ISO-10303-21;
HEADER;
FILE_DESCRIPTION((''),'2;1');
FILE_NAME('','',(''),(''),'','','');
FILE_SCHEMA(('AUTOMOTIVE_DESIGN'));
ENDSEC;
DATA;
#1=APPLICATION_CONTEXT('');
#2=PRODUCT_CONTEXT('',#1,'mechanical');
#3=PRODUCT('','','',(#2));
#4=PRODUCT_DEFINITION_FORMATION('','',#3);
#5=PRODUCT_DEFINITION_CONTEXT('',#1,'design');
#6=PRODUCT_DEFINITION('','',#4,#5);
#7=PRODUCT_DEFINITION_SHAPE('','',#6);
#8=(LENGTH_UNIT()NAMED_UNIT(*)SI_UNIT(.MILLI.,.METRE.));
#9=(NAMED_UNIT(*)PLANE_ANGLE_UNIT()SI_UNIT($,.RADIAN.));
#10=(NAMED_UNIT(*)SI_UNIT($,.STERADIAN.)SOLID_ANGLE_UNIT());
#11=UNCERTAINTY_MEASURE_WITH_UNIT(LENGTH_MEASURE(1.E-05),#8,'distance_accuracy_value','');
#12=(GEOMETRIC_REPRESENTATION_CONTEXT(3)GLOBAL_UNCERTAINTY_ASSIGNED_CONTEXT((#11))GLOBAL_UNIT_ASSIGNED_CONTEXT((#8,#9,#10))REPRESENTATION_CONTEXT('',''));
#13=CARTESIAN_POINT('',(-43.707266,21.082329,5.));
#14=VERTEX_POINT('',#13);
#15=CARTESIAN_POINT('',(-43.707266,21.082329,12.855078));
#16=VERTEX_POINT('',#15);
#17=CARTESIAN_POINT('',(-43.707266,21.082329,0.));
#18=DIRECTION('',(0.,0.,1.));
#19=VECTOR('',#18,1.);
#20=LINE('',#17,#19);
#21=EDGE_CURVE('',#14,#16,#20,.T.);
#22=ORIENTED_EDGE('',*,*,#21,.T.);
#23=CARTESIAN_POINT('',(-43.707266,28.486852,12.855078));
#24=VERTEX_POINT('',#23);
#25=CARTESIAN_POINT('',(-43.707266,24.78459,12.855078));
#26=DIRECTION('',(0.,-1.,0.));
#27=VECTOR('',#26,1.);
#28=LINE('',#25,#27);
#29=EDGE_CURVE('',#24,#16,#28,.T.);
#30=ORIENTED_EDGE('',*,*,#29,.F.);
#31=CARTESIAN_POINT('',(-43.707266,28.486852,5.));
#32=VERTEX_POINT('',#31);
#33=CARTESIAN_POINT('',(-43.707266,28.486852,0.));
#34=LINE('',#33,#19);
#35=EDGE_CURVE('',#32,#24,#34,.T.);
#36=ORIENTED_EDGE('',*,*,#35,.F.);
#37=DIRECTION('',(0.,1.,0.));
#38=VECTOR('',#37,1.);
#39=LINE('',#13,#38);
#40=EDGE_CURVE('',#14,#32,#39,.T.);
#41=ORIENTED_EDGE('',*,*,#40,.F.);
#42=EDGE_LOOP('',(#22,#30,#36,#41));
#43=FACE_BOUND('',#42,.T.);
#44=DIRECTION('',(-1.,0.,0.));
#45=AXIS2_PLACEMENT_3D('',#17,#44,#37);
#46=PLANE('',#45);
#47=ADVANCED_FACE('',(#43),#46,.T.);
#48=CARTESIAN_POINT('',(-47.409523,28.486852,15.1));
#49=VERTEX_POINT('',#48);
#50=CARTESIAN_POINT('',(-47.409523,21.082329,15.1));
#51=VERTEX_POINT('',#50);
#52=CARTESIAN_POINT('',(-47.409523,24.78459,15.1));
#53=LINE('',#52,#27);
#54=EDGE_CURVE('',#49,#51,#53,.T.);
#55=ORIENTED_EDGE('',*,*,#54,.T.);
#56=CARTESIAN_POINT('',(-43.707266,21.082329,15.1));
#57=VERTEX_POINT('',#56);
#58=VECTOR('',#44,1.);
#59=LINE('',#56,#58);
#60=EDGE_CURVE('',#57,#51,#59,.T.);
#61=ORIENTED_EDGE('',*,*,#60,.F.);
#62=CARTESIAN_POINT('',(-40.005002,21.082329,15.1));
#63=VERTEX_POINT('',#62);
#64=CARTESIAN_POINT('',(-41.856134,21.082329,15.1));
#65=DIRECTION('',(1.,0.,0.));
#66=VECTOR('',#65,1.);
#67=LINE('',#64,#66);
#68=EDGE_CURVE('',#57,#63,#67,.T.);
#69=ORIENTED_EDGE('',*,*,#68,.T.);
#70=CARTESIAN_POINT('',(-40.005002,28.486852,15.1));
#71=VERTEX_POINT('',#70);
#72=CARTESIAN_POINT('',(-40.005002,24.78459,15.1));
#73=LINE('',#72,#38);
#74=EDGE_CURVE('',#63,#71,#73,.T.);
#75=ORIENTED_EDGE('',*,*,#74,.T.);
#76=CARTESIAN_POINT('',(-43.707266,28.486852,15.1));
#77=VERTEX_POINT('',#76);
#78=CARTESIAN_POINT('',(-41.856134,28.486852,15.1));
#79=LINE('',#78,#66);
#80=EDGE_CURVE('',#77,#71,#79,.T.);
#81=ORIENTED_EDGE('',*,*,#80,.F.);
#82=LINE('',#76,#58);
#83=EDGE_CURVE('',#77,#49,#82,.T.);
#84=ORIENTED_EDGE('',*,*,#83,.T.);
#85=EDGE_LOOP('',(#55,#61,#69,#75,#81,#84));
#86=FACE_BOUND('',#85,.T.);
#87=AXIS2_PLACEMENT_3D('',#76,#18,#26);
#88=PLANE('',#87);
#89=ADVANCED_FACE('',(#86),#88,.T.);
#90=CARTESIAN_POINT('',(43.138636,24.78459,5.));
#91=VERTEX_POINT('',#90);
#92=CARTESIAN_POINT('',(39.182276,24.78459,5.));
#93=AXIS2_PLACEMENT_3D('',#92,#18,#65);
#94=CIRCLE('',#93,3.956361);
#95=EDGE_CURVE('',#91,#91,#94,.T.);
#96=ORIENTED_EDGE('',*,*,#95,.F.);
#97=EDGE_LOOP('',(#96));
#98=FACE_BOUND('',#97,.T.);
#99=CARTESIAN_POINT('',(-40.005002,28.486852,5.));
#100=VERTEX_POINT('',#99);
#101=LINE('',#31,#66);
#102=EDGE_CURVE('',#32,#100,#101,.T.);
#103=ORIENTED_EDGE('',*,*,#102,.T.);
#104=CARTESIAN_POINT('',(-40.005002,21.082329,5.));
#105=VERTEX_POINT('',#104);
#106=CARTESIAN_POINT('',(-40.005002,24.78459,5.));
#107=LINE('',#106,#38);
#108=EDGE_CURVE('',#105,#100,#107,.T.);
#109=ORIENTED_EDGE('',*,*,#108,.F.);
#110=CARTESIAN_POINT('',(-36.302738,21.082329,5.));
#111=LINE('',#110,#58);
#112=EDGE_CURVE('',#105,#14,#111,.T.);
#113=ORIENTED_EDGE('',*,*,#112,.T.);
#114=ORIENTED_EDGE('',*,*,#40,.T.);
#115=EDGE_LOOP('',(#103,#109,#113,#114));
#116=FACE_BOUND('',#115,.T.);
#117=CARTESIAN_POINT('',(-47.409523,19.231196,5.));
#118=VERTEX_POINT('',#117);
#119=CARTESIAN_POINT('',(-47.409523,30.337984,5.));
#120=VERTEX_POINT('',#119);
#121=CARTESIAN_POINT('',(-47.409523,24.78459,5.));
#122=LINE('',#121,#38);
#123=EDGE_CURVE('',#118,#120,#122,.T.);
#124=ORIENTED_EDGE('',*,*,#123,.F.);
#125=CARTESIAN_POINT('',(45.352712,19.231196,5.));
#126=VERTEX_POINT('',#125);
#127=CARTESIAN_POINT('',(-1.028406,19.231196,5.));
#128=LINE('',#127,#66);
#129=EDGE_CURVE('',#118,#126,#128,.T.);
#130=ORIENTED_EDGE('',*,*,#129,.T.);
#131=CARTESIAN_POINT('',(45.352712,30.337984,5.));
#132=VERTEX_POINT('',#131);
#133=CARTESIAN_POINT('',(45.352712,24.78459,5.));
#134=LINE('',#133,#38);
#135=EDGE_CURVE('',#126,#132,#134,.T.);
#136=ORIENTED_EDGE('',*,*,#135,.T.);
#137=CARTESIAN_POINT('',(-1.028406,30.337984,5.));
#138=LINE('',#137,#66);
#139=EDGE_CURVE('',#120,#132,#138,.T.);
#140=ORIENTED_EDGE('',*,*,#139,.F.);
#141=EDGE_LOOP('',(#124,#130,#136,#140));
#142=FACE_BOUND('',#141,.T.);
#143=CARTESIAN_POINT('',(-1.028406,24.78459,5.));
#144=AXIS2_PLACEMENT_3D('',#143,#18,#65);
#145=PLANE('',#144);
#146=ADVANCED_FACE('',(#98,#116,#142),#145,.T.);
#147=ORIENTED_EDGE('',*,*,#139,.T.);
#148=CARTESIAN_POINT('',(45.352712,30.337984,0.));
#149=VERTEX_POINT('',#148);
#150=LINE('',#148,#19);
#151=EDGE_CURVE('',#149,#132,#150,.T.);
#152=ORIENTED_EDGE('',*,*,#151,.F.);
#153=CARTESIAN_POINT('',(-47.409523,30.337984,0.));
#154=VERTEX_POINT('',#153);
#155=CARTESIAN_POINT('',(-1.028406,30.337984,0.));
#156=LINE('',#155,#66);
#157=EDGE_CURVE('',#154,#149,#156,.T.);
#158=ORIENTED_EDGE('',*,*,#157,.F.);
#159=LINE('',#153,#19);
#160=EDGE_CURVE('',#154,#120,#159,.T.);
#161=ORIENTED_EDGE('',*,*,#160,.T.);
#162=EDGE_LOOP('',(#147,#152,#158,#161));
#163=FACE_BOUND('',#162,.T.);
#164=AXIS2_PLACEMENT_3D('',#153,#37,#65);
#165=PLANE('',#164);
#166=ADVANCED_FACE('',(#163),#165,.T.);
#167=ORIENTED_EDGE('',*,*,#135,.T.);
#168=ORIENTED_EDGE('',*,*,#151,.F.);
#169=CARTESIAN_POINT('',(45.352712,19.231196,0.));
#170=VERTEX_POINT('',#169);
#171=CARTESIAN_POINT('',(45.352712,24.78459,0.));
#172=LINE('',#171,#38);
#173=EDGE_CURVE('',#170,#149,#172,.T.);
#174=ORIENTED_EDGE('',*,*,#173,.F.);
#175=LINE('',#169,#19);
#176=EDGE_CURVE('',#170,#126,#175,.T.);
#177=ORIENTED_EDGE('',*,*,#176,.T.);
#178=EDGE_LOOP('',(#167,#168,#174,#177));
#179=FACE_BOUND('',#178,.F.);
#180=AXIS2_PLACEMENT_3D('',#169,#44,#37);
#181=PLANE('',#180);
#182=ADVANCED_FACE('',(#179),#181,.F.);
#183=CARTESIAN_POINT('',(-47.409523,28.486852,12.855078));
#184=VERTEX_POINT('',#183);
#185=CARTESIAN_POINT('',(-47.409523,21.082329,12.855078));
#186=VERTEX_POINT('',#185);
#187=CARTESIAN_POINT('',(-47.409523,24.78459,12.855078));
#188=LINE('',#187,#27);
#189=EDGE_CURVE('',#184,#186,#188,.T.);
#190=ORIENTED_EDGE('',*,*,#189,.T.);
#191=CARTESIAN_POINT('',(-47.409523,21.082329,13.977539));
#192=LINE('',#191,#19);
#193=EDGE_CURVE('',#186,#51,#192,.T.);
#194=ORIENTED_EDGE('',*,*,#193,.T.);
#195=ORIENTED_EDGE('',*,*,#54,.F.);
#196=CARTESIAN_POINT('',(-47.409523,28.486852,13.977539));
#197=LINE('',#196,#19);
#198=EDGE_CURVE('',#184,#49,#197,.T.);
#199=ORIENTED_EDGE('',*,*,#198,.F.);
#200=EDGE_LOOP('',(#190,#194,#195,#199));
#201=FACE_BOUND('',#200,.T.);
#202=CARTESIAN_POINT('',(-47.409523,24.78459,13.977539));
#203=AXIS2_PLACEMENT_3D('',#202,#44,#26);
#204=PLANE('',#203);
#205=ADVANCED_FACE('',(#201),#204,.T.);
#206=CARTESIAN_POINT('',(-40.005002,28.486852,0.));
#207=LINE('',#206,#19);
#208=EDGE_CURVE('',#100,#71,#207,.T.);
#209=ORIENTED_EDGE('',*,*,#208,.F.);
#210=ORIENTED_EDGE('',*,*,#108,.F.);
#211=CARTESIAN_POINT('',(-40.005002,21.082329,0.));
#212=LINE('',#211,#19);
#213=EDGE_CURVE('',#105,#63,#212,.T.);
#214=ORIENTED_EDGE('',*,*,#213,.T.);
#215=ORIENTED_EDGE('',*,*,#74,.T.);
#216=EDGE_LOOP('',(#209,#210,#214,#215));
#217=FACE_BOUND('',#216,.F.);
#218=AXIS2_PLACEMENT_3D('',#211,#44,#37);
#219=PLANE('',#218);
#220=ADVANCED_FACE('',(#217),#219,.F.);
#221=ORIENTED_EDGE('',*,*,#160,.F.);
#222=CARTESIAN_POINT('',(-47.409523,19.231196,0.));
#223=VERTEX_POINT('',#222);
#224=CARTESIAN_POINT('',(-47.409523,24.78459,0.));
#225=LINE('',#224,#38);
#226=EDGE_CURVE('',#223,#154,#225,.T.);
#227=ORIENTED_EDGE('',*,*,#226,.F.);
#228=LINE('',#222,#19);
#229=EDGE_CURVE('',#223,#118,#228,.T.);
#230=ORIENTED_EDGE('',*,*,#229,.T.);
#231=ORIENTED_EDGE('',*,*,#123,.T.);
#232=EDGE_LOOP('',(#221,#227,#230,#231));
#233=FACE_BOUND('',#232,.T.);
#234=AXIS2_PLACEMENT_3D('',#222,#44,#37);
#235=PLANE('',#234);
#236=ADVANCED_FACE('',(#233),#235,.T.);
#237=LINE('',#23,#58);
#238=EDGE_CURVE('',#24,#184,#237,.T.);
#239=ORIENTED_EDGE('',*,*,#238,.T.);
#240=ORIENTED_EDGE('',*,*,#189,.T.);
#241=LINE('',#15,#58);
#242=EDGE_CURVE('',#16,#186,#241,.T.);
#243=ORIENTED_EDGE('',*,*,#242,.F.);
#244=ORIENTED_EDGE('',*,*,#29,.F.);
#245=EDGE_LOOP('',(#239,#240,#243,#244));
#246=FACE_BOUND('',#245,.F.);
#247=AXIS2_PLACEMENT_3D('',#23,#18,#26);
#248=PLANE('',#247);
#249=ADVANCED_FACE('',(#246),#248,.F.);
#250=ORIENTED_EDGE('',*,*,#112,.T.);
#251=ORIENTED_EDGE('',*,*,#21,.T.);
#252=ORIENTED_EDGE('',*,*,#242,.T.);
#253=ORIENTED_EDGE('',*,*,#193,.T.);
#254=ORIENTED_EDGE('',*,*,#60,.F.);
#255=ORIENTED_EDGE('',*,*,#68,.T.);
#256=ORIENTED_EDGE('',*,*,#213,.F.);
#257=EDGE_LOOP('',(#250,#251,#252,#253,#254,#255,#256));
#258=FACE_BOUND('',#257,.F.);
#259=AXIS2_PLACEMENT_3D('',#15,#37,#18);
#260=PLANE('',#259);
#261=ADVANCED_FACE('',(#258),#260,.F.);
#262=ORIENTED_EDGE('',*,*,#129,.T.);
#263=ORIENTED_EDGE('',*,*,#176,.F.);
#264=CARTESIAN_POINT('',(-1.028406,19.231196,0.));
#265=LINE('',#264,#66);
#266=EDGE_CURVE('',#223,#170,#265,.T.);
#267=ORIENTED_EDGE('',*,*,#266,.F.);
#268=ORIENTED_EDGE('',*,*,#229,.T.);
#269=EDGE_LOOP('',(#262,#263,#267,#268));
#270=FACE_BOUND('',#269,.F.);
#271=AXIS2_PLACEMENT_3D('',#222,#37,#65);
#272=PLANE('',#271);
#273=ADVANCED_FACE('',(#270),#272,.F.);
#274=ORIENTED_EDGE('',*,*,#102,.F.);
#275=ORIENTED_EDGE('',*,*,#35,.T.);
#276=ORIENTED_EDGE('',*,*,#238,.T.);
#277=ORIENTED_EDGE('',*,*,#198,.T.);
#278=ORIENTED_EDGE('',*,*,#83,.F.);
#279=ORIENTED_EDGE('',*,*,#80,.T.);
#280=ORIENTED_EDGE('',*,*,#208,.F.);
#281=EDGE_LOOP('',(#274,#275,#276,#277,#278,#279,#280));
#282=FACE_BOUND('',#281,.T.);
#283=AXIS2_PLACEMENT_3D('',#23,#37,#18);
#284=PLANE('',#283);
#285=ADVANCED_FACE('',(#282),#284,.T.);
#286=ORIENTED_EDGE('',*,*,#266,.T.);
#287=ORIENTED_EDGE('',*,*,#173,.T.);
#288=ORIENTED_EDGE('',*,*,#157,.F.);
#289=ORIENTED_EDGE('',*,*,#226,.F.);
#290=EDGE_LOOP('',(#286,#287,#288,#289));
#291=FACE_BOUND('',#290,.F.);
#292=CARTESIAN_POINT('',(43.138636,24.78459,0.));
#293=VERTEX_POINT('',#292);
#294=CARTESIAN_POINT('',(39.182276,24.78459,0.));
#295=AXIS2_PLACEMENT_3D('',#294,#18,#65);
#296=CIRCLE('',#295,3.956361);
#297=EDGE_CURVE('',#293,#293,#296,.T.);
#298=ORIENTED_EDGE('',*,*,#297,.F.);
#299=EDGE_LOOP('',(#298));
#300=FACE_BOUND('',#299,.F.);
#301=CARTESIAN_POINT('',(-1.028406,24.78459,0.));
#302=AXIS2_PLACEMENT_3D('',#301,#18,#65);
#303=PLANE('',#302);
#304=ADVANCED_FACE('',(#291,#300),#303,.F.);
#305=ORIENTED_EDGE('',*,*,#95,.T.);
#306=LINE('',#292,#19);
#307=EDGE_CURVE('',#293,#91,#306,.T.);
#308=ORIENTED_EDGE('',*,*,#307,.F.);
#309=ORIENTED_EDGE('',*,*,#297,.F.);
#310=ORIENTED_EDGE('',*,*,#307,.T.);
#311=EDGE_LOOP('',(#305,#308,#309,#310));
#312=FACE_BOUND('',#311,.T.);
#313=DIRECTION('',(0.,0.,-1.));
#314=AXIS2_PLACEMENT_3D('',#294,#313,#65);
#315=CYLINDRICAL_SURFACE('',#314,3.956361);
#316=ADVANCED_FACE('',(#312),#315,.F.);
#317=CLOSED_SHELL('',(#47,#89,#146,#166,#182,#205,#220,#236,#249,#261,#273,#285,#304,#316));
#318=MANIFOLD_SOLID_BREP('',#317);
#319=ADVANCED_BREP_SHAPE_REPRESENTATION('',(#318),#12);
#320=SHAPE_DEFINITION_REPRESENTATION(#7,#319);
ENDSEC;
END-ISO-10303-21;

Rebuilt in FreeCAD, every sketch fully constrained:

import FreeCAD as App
import Part
import Sketcher

doc = App.newDocument("Part")
body = doc.addObject("PartDesign::Body", "Body")

sketch1 = body.newObject("Sketcher::SketchObject", "Sketch")
sketch1.AttachmentSupport = (doc.getObject("XY_Plane"), [""])
sketch1.MapMode = "FlatFace"
sketch1.addGeometry([
    Part.LineSegment(App.Vector(-47.4, 30.3, 0), App.Vector(-47.4, 19.2, 0)),
    Part.LineSegment(App.Vector(-47.4, 19.2, 0), App.Vector(45.4, 19.2, 0)),
    Part.LineSegment(App.Vector(45.4, 19.2, 0), App.Vector(45.4, 30.3, 0)),
    Part.LineSegment(App.Vector(45.4, 30.3, 0), App.Vector(-47.4, 30.3, 0)),
    Part.Circle(App.Vector(39.2, 24.8, 0), App.Vector(0, 0, 1), 4),
    Part.LineSegment(App.Vector(-43.7, 28.5, 0), App.Vector(-40, 28.5, 0)),
    Part.LineSegment(App.Vector(-40, 28.5, 0), App.Vector(-40, 21.1, 0)),
    Part.LineSegment(App.Vector(-40, 21.1, 0), App.Vector(-43.7, 21.1, 0)),
    Part.LineSegment(App.Vector(-43.7, 21.1, 0), App.Vector(-43.7, 28.5, 0)),
], False)
sketch1.addConstraint([
    Sketcher.Constraint("Coincident", 0, 2, 1, 1),
    Sketcher.Constraint("Coincident", 1, 2, 2, 1),
    Sketcher.Constraint("Coincident", 2, 2, 3, 1),
    Sketcher.Constraint("Coincident", 3, 2, 0, 1),
    Sketcher.Constraint("Coincident", 5, 2, 6, 1),
    Sketcher.Constraint("Coincident", 6, 2, 7, 1),
    Sketcher.Constraint("Coincident", 7, 2, 8, 1),
    Sketcher.Constraint("Coincident", 8, 2, 5, 1),
    Sketcher.Constraint("Vertical", 0),
    Sketcher.Constraint("Horizontal", 1),
    Sketcher.Constraint("Vertical", 2),
    Sketcher.Constraint("Horizontal", 3),
    Sketcher.Constraint("Horizontal", 5),
    Sketcher.Constraint("Vertical", 6),
    Sketcher.Constraint("Horizontal", 7),
    Sketcher.Constraint("Vertical", 8),
    Sketcher.Constraint("Diameter", 4, 7.912721),
    Sketcher.Constraint("DistanceX", 0, 2, 4, 3, 86.591799),
    Sketcher.Constraint("DistanceX", 1, 1, 1, 2, 92.762236),
    Sketcher.Constraint("DistanceX", 5, 1, 5, 2, 3.702264),
    Sketcher.Constraint("DistanceY", 0, 2, 0, 1, 11.106787),
    Sketcher.Constraint("DistanceY", 6, 2, 6, 1, 7.404523),
    Sketcher.Constraint("DistanceY", -1, 1, 4, 3, 24.78459),
    Sketcher.Constraint("DistanceY", -1, 1, 5, 2, 28.486852),
    Sketcher.Constraint("DistanceX", 3, 2, 5, 2, 7.404521),
    Sketcher.Constraint("DistanceX", -1, 1, 4, 3, 39.182276),
    Sketcher.Constraint("DistanceY", -1, 1, 0, 2, 19.231196),
])
pad1 = body.newObject("PartDesign::Pad", "Pad")
pad1.Profile = sketch1
pad1.Length = 5

sketch2 = body.newObject("Sketcher::SketchObject", "Sketch001")
sketch2.AttachmentSupport = (doc.getObject("XY_Plane"), [""])
sketch2.MapMode = "FlatFace"
sketch2.addGeometry([
    Part.LineSegment(App.Vector(-43.7, 28.5, 0), App.Vector(-43.7, 21.1, 0)),
    Part.LineSegment(App.Vector(-43.7, 21.1, 0), App.Vector(-40, 21.1, 0)),
    Part.LineSegment(App.Vector(-40, 21.1, 0), App.Vector(-40, 28.5, 0)),
    Part.LineSegment(App.Vector(-40, 28.5, 0), App.Vector(-43.7, 28.5, 0)),
], False)
sketch2.addConstraint([
    Sketcher.Constraint("Coincident", 0, 2, 1, 1),
    Sketcher.Constraint("Coincident", 1, 2, 2, 1),
    Sketcher.Constraint("Coincident", 2, 2, 3, 1),
    Sketcher.Constraint("Coincident", 3, 2, 0, 1),
    Sketcher.Constraint("Vertical", 0),
    Sketcher.Constraint("Horizontal", 1),
    Sketcher.Constraint("Vertical", 2),
    Sketcher.Constraint("Horizontal", 3),
    Sketcher.Constraint("DistanceX", 1, 1, 1, 2, 3.702264),
    Sketcher.Constraint("DistanceY", 0, 2, 0, 1, 7.404523),
    Sketcher.Constraint("DistanceY", -1, 1, 0, 2, 21.082329),
    Sketcher.Constraint("DistanceX", 0, 2, -1, 1, 43.707266),
])
pad2 = body.newObject("PartDesign::Pad", "Pad001")
pad2.Profile = sketch2
pad2.Length = 15.1

sketch3 = body.newObject("Sketcher::SketchObject", "Sketch002")
sketch3.AttachmentSupport = (doc.getObject("YZ_Plane"), [""])
sketch3.MapMode = "FlatFace"
sketch3.AttachmentOffset = App.Placement(App.Vector(0, 0, -43.707266), App.Rotation())
sketch3.addGeometry([
    Part.LineSegment(App.Vector(28.5, 15.1, 0), App.Vector(28.5, 12.9, 0)),
    Part.LineSegment(App.Vector(28.5, 12.9, 0), App.Vector(21.1, 12.9, 0)),
    Part.LineSegment(App.Vector(21.1, 12.9, 0), App.Vector(21.1, 15.1, 0)),
    Part.LineSegment(App.Vector(21.1, 15.1, 0), App.Vector(28.5, 15.1, 0)),
], False)
sketch3.addConstraint([
    Sketcher.Constraint("Coincident", 0, 2, 1, 1),
    Sketcher.Constraint("Coincident", 1, 2, 2, 1),
    Sketcher.Constraint("Coincident", 2, 2, 3, 1),
    Sketcher.Constraint("Coincident", 3, 2, 0, 1),
    Sketcher.Constraint("Vertical", 0),
    Sketcher.Constraint("Horizontal", 1),
    Sketcher.Constraint("Vertical", 2),
    Sketcher.Constraint("Horizontal", 3),
    Sketcher.Constraint("DistanceY", -1, 1, 2, 2, 15.1),
    Sketcher.Constraint("DistanceY", 0, 2, 0, 1, 2.244922),
    Sketcher.Constraint("DistanceX", 1, 2, 1, 1, 7.404523),
    Sketcher.Constraint("DistanceX", -1, 1, 0, 2, 28.486852),
])
pad3 = body.newObject("PartDesign::Pad", "Pad002")
pad3.Profile = sketch3
pad3.Length = 3.702257
pad3.Reversed = True

doc.recompute()
